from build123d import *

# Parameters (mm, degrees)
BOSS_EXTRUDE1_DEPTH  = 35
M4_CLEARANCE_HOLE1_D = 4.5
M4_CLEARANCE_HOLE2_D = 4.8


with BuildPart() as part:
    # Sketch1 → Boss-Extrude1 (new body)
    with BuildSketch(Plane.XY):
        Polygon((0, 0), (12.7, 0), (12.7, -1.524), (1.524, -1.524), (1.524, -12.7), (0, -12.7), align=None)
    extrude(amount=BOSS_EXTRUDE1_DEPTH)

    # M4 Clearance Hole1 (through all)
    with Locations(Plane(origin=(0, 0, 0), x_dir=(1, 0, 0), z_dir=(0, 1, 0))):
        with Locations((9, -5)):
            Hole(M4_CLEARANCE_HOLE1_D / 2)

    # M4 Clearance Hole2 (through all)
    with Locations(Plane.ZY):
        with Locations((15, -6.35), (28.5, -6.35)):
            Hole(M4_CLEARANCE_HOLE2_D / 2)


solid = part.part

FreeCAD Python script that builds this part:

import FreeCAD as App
import Part
import Sketcher
Q = App.Units.Quantity


def add_polygon(sketch, points):
    """Adds a closed chain of lines whose ends are joined by coincident constraints."""
    first, n = sketch.GeometryCount, len(points)
    for a, b in zip(points, points[1:] + points[:1]):
        sketch.addGeometry(Part.LineSegment(App.Vector(*a, 0), App.Vector(*b, 0)), False)
    for i in range(n):
        sketch.addConstraint(Sketcher.Constraint("Coincident", first + i, 2, first + (i + 1) % n, 1))

doc = App.newDocument("Part")
body = doc.addObject("PartDesign::Body", "Body")

sketch1 = body.newObject("Sketcher::SketchObject", "Sketch")
sketch1.AttachmentSupport = (doc.getObject("XY_Plane"), [""])
sketch1.MapMode = "FlatFace"
add_polygon(sketch1, [(12.7, 0), (0, 0), (0, -12.7), (1.5, -12.7), (1.5, -1.5), (12.7, -1.5)])
sketch1.addConstraint(Sketcher.Constraint("Horizontal", 0))
sketch1.addConstraint(Sketcher.Constraint("Vertical", 1))
sketch1.addConstraint(Sketcher.Constraint("Horizontal", 2))
sketch1.addConstraint(Sketcher.Constraint("Vertical", 3))
sketch1.addConstraint(Sketcher.Constraint("Horizontal", 4))
sketch1.addConstraint(Sketcher.Constraint("Vertical", 5))
sketch1.addConstraint(Sketcher.Constraint("Coincident", 0, 2, -1, 1))
sketch1.addConstraint(Sketcher.Constraint("Equal", 0, 1))
sketch1.addConstraint(Sketcher.Constraint("Equal", 4, 3))
sketch1.addConstraint(Sketcher.Constraint("DistanceX", 0, 2, 0, 1, Q("12.7 mm")))
sketch1.addConstraint(Sketcher.Constraint("DistanceX", 2, 1, 2, 2, Q("1.524 mm")))
pad1 = body.newObject("PartDesign::Pad", "Pad")
pad1.Profile = sketch1
pad1.Length = 35

sketch2 = body.newObject("Sketcher::SketchObject", "Sketch001")
sketch2.AttachmentSupport = (doc.getObject("XZ_Plane"), [""])
sketch2.MapMode = "FlatFace"
sketch2.addGeometry(Part.Circle(App.Vector(9, 5, 0), App.Vector(0, 0, 1), 2.2), False)
sketch2.addConstraint(Sketcher.Constraint("Diameter", 0, Q("4.5 mm")))
sketch2.addConstraint(Sketcher.Constraint("DistanceX", -1, 1, 0, 3, Q("9 mm")))
sketch2.addConstraint(Sketcher.Constraint("DistanceY", -1, 1, 0, 3, Q("5 mm")))
doc.recompute()
hole = body.newObject("PartDesign::Hole", "Hole")
hole.Profile = sketch2
hole.ThreadType = "None"
hole.Diameter = 4.5
hole.DepthType = "ThroughAll"
hole.Reversed = True

sketch3 = body.newObject("Sketcher::SketchObject", "Sketch002")
sketch3.AttachmentSupport = (doc.getObject("YZ_Plane"), [""])
sketch3.MapMode = "FlatFace"
sketch3.addGeometry(Part.Circle(App.Vector(-6.3, 15, 0), App.Vector(0, 0, 1), 2.4), False)
sketch3.addGeometry(Part.Circle(App.Vector(-6.3, 28.5, 0), App.Vector(0, 0, 1), 2.4), False)
sketch3.addConstraint(Sketcher.Constraint("Equal", 0, 1))
sketch3.addConstraint(Sketcher.Constraint("Vertical", 0, 3, 1, 3))
sketch3.addConstraint(Sketcher.Constraint("Diameter", 0, Q("4.8 mm")))
sketch3.addConstraint(Sketcher.Constraint("DistanceY", -1, 1, 0, 3, Q("15 mm")))
sketch3.addConstraint(Sketcher.Constraint("DistanceY", -1, 1, 1, 3, Q("28.5 mm")))
sketch3.addConstraint(Sketcher.Constraint("DistanceX", 0, 3, -1, 1, Q("6.35 mm")))
doc.recompute()
hole2 = body.newObject("PartDesign::Hole", "Hole001")
hole2.Profile = sketch3
hole2.ThreadType = "None"
hole2.Diameter = 4.8
hole2.DepthType = "ThroughAll"
hole2.Reversed = True

doc.recompute()
